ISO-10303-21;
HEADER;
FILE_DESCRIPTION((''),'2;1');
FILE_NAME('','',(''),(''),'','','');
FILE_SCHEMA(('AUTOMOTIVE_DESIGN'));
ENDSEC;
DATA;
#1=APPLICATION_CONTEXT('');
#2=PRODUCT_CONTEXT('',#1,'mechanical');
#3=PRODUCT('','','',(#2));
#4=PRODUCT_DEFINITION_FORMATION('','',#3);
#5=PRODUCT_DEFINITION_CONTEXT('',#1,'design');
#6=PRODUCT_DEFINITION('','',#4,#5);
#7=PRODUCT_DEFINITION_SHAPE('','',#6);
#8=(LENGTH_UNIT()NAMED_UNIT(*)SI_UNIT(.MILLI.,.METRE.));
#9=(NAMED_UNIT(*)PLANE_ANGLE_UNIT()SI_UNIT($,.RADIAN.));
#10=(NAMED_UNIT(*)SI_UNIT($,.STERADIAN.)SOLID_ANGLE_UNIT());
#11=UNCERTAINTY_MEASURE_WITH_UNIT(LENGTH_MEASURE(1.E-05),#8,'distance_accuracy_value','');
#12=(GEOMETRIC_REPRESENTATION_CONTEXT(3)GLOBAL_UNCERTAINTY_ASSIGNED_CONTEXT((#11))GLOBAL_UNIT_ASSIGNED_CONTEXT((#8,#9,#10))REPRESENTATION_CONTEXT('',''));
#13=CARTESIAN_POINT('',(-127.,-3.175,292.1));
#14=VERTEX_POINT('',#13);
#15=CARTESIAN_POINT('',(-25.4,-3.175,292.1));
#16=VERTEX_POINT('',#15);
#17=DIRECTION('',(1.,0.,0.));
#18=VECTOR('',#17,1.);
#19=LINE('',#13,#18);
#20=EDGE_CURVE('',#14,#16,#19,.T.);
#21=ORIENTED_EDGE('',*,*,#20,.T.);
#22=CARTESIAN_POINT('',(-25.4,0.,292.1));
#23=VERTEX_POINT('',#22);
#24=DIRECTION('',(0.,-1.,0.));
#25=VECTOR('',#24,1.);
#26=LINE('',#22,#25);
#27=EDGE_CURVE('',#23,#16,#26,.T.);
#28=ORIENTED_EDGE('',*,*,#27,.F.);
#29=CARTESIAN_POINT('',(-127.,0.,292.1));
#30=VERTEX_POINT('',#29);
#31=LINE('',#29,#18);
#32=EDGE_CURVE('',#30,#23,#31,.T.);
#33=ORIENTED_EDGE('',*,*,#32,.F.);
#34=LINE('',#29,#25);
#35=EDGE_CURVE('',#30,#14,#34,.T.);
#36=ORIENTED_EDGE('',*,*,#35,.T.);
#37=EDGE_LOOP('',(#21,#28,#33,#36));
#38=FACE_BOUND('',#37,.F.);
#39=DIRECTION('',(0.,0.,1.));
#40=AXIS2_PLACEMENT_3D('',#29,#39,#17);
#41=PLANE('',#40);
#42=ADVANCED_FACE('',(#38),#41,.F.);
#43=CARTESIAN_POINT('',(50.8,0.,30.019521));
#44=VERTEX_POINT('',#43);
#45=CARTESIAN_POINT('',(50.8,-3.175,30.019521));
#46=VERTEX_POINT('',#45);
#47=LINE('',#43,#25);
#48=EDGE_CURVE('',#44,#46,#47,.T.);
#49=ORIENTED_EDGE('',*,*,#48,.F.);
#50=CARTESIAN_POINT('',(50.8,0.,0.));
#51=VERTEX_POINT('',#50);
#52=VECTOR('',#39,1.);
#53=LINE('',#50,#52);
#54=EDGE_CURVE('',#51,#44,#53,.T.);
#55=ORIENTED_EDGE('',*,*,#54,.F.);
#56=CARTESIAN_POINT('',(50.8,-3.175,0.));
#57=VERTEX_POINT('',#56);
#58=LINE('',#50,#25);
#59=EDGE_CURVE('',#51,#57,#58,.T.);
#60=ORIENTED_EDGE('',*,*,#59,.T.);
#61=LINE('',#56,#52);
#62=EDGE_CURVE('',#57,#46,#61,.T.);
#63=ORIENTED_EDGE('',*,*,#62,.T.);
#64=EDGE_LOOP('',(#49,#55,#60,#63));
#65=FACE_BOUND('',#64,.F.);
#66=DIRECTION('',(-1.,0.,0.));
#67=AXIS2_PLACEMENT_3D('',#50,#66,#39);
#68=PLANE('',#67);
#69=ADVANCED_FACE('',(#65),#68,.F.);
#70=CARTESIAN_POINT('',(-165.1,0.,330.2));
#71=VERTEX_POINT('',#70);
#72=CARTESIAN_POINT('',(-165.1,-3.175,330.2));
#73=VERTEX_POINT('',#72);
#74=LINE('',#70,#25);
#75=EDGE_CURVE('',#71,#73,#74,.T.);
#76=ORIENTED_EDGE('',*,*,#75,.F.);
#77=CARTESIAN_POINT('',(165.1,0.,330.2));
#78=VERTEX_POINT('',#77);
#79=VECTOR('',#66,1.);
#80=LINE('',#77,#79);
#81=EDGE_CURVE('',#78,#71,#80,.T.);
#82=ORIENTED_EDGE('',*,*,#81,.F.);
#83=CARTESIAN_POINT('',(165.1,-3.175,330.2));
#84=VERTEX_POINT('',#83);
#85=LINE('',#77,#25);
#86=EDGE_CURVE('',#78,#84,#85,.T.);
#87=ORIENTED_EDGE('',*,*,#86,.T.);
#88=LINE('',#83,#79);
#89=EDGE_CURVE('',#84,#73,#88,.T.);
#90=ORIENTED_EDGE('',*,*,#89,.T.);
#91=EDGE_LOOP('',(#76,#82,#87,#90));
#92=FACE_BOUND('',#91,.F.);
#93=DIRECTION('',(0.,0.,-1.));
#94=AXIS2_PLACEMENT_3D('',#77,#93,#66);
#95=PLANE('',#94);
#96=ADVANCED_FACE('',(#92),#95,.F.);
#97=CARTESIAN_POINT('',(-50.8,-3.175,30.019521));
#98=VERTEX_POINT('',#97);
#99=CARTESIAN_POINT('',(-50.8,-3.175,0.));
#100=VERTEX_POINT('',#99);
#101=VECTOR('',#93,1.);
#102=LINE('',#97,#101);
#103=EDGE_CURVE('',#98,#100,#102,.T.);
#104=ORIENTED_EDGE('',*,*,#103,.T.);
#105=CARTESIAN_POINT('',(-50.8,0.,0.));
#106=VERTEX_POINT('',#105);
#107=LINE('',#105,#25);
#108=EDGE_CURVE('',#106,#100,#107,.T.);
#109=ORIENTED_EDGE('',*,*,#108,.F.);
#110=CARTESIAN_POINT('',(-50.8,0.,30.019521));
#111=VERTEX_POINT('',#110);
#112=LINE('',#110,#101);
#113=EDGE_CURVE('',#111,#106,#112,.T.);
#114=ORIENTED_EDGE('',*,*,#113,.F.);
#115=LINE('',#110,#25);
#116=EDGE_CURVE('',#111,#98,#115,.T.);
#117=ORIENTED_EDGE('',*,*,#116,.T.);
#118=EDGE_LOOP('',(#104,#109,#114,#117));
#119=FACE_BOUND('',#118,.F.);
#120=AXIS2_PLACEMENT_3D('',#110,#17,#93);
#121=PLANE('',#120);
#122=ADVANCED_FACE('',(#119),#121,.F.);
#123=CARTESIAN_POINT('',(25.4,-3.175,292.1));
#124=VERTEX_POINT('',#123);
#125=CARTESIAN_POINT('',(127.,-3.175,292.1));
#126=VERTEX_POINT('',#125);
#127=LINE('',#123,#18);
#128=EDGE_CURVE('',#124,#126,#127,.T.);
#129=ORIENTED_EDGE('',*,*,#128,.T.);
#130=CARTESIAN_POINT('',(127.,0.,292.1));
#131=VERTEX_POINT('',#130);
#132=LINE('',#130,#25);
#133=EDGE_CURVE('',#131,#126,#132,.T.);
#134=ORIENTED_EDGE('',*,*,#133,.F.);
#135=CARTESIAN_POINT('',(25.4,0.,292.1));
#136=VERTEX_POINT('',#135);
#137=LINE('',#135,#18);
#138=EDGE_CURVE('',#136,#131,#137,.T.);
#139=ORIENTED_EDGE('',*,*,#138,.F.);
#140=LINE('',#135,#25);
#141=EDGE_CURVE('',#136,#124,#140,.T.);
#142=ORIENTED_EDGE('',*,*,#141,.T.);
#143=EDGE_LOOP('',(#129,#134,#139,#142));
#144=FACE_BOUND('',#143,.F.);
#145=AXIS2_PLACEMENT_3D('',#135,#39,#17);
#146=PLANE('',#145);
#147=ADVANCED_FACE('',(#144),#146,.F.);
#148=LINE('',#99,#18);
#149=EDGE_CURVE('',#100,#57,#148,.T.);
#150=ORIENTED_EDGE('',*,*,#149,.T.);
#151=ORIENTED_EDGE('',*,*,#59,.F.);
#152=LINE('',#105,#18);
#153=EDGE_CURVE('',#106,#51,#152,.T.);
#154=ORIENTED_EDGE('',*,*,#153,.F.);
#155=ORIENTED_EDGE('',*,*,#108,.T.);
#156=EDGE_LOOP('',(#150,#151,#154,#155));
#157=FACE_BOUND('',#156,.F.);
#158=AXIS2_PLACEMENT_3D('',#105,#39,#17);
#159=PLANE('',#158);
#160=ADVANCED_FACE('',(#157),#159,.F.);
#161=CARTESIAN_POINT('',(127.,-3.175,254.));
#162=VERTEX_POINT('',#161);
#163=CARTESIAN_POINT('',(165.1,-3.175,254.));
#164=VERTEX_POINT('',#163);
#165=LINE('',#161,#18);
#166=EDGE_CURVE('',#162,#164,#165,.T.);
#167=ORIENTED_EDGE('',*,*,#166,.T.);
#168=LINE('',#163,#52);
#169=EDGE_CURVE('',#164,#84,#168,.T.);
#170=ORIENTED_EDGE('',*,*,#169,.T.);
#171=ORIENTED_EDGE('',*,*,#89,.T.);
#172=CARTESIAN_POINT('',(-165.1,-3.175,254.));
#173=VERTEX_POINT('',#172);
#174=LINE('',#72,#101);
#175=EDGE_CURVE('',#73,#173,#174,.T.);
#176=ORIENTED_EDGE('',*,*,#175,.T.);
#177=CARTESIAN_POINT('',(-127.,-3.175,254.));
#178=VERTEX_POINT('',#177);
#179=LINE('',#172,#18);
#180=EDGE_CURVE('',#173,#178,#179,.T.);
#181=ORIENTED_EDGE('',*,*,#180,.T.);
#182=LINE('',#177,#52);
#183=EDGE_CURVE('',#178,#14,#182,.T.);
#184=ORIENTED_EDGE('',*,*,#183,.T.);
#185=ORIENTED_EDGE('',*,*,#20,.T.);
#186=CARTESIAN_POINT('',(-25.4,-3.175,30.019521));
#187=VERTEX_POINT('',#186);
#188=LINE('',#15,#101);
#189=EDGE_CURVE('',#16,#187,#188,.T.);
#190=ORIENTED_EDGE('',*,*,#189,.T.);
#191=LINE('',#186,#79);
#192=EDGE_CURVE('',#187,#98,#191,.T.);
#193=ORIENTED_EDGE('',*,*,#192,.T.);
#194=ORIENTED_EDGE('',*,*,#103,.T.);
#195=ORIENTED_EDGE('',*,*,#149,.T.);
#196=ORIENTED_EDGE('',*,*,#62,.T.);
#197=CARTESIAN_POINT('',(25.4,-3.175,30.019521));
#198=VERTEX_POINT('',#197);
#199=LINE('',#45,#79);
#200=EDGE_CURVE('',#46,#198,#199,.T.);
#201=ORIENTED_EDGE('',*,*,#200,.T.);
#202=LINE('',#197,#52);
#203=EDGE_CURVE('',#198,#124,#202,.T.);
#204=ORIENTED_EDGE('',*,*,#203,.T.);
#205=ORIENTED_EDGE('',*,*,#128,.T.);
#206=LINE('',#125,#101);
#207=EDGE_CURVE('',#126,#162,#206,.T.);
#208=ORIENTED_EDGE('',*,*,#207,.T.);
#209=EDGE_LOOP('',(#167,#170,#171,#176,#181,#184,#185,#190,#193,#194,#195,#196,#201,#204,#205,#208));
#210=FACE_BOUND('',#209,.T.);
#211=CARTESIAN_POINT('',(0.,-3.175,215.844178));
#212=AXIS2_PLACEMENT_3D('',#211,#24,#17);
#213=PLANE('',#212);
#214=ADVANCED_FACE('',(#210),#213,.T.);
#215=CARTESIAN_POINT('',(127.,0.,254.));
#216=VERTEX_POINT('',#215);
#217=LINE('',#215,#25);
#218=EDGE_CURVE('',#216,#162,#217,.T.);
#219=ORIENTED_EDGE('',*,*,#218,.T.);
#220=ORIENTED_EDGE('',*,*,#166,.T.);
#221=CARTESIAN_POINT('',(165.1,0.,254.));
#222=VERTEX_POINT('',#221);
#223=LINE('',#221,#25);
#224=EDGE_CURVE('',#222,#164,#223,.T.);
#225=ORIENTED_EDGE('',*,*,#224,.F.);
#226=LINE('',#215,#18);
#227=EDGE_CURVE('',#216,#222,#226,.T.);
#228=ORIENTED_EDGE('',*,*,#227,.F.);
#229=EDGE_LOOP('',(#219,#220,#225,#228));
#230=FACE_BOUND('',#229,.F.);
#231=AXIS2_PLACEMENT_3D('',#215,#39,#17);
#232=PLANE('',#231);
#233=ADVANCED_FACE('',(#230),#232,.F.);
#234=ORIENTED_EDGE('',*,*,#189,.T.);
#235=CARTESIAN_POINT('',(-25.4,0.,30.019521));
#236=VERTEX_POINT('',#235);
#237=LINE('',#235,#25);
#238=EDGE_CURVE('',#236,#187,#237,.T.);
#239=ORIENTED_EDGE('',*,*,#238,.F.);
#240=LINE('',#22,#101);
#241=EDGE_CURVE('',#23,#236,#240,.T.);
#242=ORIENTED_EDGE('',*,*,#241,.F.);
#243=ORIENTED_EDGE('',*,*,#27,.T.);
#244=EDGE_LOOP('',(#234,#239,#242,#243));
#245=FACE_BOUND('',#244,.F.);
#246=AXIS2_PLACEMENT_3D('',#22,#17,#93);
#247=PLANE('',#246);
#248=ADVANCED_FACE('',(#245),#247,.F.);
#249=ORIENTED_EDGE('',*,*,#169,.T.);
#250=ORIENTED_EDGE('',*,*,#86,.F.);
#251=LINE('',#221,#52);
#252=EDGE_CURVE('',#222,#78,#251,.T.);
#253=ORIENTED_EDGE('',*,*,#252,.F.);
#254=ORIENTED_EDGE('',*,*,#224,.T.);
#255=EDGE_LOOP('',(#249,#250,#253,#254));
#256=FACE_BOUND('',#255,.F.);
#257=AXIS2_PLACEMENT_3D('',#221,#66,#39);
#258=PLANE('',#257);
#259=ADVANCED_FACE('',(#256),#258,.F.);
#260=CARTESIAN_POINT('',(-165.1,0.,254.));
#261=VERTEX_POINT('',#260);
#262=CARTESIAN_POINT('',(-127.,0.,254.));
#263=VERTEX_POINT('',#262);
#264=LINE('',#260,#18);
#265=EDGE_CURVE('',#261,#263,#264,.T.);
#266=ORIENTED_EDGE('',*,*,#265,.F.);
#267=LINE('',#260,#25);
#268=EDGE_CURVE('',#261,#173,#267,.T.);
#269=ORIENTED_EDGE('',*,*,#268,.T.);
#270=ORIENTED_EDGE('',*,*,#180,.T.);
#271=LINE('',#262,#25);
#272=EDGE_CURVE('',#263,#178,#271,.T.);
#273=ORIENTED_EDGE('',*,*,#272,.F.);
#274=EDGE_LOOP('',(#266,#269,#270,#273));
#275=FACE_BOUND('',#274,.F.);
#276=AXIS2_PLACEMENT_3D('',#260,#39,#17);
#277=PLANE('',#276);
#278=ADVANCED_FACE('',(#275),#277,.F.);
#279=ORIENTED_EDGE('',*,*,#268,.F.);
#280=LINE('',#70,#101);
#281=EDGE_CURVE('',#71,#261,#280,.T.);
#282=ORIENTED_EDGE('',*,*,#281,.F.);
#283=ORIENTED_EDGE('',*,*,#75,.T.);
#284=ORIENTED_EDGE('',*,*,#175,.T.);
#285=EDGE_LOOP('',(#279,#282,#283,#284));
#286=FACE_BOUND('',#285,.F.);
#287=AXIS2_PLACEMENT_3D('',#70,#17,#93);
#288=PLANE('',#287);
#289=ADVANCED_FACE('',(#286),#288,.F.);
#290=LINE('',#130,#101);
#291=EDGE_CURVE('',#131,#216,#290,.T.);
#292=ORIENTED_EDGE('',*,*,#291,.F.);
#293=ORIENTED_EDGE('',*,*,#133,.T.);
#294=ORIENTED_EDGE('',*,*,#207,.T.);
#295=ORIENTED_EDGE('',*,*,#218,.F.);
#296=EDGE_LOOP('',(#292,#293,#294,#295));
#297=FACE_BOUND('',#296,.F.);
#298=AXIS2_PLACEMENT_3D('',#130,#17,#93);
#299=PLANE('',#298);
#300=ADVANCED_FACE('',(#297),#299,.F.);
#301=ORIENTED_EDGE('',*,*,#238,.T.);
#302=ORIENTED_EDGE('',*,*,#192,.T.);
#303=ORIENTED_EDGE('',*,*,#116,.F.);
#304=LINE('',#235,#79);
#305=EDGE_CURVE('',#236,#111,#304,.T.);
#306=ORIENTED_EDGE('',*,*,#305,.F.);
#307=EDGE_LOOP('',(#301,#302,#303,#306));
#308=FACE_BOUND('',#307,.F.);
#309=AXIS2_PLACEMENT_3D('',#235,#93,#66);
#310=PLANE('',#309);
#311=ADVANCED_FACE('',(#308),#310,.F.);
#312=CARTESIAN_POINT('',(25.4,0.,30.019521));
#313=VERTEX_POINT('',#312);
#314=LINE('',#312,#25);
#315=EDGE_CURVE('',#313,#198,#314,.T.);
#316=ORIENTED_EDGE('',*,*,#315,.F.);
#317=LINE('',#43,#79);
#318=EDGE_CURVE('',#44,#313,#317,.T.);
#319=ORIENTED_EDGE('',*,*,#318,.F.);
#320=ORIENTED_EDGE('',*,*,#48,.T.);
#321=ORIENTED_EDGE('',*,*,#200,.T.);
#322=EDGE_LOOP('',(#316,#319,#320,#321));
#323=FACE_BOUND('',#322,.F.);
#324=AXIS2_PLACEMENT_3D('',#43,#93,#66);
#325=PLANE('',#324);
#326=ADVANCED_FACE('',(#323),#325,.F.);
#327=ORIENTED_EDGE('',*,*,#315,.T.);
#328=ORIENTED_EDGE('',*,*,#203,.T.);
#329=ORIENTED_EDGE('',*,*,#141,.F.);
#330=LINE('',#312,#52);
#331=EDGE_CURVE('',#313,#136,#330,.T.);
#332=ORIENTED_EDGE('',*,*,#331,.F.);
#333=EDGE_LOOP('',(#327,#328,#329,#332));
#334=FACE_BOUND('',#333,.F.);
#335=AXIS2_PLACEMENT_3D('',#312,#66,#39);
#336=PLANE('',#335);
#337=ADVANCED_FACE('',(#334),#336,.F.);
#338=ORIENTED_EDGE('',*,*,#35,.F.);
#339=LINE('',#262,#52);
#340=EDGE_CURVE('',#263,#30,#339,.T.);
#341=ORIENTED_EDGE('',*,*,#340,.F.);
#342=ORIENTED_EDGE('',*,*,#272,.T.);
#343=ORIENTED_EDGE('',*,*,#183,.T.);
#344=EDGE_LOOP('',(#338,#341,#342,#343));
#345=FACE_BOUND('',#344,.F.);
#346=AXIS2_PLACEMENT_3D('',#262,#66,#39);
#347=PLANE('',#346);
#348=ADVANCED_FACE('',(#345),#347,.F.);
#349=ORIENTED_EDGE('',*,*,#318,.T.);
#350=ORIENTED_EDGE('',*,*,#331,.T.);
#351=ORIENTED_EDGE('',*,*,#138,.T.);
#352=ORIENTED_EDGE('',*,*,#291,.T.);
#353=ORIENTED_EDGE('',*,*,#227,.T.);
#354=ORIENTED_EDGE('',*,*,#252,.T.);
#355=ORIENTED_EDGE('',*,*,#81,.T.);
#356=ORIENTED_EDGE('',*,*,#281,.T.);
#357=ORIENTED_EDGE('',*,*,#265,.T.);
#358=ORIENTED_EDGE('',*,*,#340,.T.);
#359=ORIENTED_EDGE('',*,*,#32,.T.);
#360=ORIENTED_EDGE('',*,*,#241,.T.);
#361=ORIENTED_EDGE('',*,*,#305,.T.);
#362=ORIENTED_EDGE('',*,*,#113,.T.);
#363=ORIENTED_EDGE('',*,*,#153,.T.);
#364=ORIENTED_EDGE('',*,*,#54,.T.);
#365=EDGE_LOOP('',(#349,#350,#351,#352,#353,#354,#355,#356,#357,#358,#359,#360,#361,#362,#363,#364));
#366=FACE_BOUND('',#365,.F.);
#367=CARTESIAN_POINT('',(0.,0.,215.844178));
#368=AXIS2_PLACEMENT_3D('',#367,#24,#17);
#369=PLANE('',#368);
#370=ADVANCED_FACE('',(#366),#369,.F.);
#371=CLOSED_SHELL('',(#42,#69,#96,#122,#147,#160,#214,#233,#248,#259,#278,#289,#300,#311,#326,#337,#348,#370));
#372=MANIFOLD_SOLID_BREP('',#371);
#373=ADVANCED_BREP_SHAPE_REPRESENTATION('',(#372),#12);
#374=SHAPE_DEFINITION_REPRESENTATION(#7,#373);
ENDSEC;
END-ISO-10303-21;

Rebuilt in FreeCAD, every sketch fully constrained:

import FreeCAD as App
import Part
import Sketcher

V = App.Vector
Q = App.Units.Quantity

doc = App.newDocument("Part")
params = doc.addObject("Spreadsheet::Sheet", "Params")
for row, (alias, value) in enumerate([
    ("sketch1_width", "4 in"),
    ("sketch1_width2", "1 in"),
    ("sketch1_width3", "13 in"),
    ("sketch1_height", "3 in"),
    ("pad1_length", "0.125 in"),
], start=1):
    params.set(f"A{row}", alias)
    params.set(f"B{row}", "=" + value)
    params.setAlias(f"B{row}", alias)

body = doc.addObject("PartDesign::Body", "Body")

sketch1 = doc.addObject("Sketcher::SketchObject", "Sketch")
body.addObject(sketch1)
sketch1.AttachmentSupport = (doc.XZ_Plane, [""])
sketch1.MapMode = "FlatFace"
sketch1.addGeometry([
    Part.LineSegment(V(-165.1, 330.2, 0), V(-165.1, 254, 0)),
    Part.LineSegment(V(-165.1, 254, 0), V(-127, 254, 0)),
    Part.LineSegment(V(-127, 254, 0), V(-127, 292.1, 0)),
    Part.LineSegment(V(-127, 292.1, 0), V(-25.4, 292.1, 0)),
    Part.LineSegment(V(-25.4, 292.1, 0), V(-25.4, 30.019521, 0)),
    Part.LineSegment(V(-25.4, 30.019521, 0), V(-50.8, 30.019521, 0)),
    Part.LineSegment(V(-50.8, 30.019521, 0), V(-50.8, 0, 0)),
    Part.LineSegment(V(-50.8, 0, 0), V(50.8, 0, 0)),
    Part.LineSegment(V(50.8, 0, 0), V(50.8, 30.019521, 0)),
    Part.LineSegment(V(50.8, 30.019521, 0), V(25.4, 30.019521, 0)),
    Part.LineSegment(V(25.4, 30.019521, 0), V(25.4, 292.1, 0)),
    Part.LineSegment(V(25.4, 292.1, 0), V(127, 292.1, 0)),
    Part.LineSegment(V(127, 292.1, 0), V(127, 254, 0)),
    Part.LineSegment(V(127, 254, 0), V(165.1, 254, 0)),
    Part.LineSegment(V(165.1, 254, 0), V(165.1, 330.2, 0)),
    Part.LineSegment(V(165.1, 330.2, 0), V(-165.1, 330.2, 0)),
], False)
sketch1.addConstraint([
    Sketcher.Constraint("Coincident", 0, 2, 1, 1),
    Sketcher.Constraint("Coincident", 1, 2, 2, 1),
    Sketcher.Constraint("Coincident", 2, 2, 3, 1),
    Sketcher.Constraint("Coincident", 3, 2, 4, 1),
    Sketcher.Constraint("Coincident", 4, 2, 5, 1),
    Sketcher.Constraint("Coincident", 5, 2, 6, 1),
    Sketcher.Constraint("Coincident", 6, 2, 7, 1),
    Sketcher.Constraint("Coincident", 7, 2, 8, 1),
    Sketcher.Constraint("Coincident", 8, 2, 9, 1),
    Sketcher.Constraint("Coincident", 9, 2, 10, 1),
    Sketcher.Constraint("Coincident", 10, 2, 11, 1),
    Sketcher.Constraint("Coincident", 11, 2, 12, 1),
    Sketcher.Constraint("Coincident", 12, 2, 13, 1),
    Sketcher.Constraint("Coincident", 13, 2, 14, 1),
    Sketcher.Constraint("Coincident", 14, 2, 15, 1),
    Sketcher.Constraint("Coincident", 15, 2, 0, 1),
    Sketcher.Constraint("Vertical", 0),
    Sketcher.Constraint("Horizontal", 1),
    Sketcher.Constraint("Vertical", 2),
    Sketcher.Constraint("Horizontal", 3),
    Sketcher.Constraint("Vertical", 4),
    Sketcher.Constraint("Horizontal", 5),
    Sketcher.Constraint("Vertical", 6),
    Sketcher.Constraint("Horizontal", 7),
    Sketcher.Constraint("Vertical", 8),
    Sketcher.Constraint("Horizontal", 9),
    Sketcher.Constraint("Vertical", 10),
    Sketcher.Constraint("Horizontal", 11),
    Sketcher.Constraint("Vertical", 12),
    Sketcher.Constraint("Horizontal", 13),
    Sketcher.Constraint("Vertical", 14),
    Sketcher.Constraint("Horizontal", 15),
    Sketcher.Constraint("Symmetric", 6, 2, 7, 2, -1, 1),
    Sketcher.Constraint("Symmetric", 4, 2, 9, 2, -2),
    Sketcher.Constraint("Symmetric", 2, 2, 11, 2, -2),
    Sketcher.Constraint("Symmetric", 0, 2, 13, 2, -2),
    Sketcher.Constraint("Equal", 3, 7),
    Sketcher.Constraint("Equal", 13, 2),
    Sketcher.Constraint("DistanceX", 3, 1, 3, 2, Q("4 in")),
    Sketcher.Constraint("DistanceX", 5, 2, 5, 1, Q("1 in")),
    Sketcher.Constraint("DistanceX", 15, 2, 15, 1, Q("13 in")),
    Sketcher.Constraint("DistanceY", 0, 2, 0, 1, Q("3 in")),
    Sketcher.Constraint("DistanceY", -1, 1, 0, 2, Q("10 in")),
    Sketcher.Constraint("DistanceY", 4, 2, 4, 1, Q("262.080479 mm")),
])
sketch1.setExpression("Constraints[38]", "Params.sketch1_width")
sketch1.setExpression("Constraints[39]", "Params.sketch1_width2")
sketch1.setExpression("Constraints[40]", "Params.sketch1_width3")
sketch1.setExpression("Constraints[41]", "Params.sketch1_height")
pad1 = doc.addObject("PartDesign::Pad", "Pad")
body.addObject(pad1)
pad1.Profile = sketch1
pad1.setExpression("Length", "Params.pad1_length")

doc.recompute()
